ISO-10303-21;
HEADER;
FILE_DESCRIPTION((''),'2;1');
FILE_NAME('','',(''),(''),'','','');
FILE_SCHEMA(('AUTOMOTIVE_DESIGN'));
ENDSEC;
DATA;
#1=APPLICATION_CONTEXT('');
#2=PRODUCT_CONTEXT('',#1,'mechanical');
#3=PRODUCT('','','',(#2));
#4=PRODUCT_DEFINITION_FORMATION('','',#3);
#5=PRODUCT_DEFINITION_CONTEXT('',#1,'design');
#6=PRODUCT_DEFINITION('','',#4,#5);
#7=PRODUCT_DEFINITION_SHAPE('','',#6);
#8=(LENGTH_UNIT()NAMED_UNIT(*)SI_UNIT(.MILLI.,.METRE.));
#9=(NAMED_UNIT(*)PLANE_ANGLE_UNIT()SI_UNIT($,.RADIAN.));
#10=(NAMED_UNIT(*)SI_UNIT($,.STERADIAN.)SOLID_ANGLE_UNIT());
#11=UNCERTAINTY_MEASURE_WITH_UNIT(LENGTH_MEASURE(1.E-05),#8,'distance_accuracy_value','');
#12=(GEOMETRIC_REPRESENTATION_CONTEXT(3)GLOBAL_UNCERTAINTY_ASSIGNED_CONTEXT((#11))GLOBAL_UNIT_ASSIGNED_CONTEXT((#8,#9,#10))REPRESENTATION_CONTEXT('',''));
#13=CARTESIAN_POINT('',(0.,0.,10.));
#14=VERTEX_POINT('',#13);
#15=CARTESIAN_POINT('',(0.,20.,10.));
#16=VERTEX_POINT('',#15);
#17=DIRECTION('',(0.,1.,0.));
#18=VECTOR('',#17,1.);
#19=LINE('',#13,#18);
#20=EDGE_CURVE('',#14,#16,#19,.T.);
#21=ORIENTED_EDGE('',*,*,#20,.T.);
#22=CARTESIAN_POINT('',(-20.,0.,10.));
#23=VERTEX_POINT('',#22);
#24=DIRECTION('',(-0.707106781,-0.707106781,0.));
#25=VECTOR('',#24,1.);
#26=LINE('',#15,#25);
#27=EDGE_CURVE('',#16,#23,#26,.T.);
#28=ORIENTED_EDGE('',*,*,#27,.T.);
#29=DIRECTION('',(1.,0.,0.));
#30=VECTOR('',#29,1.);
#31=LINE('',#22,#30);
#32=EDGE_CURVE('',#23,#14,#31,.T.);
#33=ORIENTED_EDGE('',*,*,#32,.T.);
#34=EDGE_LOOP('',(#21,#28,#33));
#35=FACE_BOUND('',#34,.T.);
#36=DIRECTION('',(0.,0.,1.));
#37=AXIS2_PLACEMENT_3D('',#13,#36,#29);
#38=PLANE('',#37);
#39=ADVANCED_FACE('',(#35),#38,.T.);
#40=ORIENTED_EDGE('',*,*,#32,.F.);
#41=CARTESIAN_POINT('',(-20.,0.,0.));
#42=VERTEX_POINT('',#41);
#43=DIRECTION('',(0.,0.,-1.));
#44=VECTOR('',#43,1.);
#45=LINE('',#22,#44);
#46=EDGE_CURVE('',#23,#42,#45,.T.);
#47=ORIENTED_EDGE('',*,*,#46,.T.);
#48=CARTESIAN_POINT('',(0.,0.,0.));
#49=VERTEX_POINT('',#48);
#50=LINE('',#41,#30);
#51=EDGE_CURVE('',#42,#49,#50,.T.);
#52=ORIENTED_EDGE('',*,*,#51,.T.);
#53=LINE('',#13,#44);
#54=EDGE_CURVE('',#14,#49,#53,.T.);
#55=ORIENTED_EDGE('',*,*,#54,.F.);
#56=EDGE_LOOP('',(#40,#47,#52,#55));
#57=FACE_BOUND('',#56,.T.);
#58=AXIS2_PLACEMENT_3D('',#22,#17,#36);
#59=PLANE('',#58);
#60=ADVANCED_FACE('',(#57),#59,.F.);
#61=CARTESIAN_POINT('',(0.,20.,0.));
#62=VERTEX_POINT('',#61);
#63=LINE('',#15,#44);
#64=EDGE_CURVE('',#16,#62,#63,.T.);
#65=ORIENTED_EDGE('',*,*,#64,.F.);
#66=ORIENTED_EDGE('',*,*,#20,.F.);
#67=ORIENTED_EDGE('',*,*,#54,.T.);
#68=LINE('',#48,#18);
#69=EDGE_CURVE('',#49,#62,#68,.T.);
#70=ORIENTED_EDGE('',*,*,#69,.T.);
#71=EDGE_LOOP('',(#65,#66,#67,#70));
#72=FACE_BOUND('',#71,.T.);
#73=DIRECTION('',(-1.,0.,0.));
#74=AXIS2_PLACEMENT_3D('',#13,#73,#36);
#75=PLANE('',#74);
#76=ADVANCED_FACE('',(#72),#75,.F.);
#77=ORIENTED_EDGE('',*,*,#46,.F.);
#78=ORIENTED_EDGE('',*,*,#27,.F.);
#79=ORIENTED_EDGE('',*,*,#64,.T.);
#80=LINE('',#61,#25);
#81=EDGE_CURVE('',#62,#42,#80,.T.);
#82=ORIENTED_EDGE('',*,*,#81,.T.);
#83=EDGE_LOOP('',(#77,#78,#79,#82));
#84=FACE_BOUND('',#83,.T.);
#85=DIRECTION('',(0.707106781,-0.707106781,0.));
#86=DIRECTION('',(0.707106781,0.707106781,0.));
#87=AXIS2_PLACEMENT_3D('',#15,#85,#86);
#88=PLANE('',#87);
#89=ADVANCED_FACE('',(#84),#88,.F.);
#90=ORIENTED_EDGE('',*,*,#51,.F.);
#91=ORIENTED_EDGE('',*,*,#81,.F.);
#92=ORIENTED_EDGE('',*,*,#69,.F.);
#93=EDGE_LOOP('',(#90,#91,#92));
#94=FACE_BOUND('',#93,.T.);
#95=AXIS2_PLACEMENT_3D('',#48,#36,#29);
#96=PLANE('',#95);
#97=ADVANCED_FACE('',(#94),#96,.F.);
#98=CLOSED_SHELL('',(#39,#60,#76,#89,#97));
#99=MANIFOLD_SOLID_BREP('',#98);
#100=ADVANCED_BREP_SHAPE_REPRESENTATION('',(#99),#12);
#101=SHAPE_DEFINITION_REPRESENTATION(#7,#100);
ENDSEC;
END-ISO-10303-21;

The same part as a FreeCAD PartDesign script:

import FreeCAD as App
import Part
import Sketcher

V = App.Vector
Q = App.Units.Quantity

doc = App.newDocument("Part")
body = doc.addObject("PartDesign::Body", "Body")

# Sketch on XY plane
sketch1 = body.newObject("Sketcher::SketchObject", "Sketch")
sketch1.AttachmentSupport = (doc.getObject("XY_Plane"), [""])
sketch1.MapMode = "FlatFace"
sketch1.addGeometry(Part.LineSegment(V(0, 0, 0), V(0, 20, 0)), False)
sketch1.addGeometry(Part.LineSegment(V(0, 20, 0), V(-20, 0, 0)), False)
sketch1.addGeometry(Part.LineSegment(V(-20, 0, 0), V(0, 0, 0)), False)
sketch1.addConstraint(Sketcher.Constraint("Coincident", 0, 2, 1, 1))
sketch1.addConstraint(Sketcher.Constraint("Coincident", 1, 2, 2, 1))
sketch1.addConstraint(Sketcher.Constraint("Coincident", 2, 2, 0, 1))
sketch1.addConstraint(Sketcher.Constraint("Vertical", 0))
sketch1.addConstraint(Sketcher.Constraint("Horizontal", 2))
sketch1.addConstraint(Sketcher.Constraint("Coincident", 2, 2, -1, 1))
sketch1.addConstraint(Sketcher.Constraint("Equal", 2, 0))
sketch1.addConstraint(Sketcher.Constraint("DistanceX", 2, 1, 2, 2, Q("20 mm")))
pad1 = body.newObject("PartDesign::Pad", "Pad")
pad1.Profile = sketch1
pad1.Length = 10

doc.recompute()
